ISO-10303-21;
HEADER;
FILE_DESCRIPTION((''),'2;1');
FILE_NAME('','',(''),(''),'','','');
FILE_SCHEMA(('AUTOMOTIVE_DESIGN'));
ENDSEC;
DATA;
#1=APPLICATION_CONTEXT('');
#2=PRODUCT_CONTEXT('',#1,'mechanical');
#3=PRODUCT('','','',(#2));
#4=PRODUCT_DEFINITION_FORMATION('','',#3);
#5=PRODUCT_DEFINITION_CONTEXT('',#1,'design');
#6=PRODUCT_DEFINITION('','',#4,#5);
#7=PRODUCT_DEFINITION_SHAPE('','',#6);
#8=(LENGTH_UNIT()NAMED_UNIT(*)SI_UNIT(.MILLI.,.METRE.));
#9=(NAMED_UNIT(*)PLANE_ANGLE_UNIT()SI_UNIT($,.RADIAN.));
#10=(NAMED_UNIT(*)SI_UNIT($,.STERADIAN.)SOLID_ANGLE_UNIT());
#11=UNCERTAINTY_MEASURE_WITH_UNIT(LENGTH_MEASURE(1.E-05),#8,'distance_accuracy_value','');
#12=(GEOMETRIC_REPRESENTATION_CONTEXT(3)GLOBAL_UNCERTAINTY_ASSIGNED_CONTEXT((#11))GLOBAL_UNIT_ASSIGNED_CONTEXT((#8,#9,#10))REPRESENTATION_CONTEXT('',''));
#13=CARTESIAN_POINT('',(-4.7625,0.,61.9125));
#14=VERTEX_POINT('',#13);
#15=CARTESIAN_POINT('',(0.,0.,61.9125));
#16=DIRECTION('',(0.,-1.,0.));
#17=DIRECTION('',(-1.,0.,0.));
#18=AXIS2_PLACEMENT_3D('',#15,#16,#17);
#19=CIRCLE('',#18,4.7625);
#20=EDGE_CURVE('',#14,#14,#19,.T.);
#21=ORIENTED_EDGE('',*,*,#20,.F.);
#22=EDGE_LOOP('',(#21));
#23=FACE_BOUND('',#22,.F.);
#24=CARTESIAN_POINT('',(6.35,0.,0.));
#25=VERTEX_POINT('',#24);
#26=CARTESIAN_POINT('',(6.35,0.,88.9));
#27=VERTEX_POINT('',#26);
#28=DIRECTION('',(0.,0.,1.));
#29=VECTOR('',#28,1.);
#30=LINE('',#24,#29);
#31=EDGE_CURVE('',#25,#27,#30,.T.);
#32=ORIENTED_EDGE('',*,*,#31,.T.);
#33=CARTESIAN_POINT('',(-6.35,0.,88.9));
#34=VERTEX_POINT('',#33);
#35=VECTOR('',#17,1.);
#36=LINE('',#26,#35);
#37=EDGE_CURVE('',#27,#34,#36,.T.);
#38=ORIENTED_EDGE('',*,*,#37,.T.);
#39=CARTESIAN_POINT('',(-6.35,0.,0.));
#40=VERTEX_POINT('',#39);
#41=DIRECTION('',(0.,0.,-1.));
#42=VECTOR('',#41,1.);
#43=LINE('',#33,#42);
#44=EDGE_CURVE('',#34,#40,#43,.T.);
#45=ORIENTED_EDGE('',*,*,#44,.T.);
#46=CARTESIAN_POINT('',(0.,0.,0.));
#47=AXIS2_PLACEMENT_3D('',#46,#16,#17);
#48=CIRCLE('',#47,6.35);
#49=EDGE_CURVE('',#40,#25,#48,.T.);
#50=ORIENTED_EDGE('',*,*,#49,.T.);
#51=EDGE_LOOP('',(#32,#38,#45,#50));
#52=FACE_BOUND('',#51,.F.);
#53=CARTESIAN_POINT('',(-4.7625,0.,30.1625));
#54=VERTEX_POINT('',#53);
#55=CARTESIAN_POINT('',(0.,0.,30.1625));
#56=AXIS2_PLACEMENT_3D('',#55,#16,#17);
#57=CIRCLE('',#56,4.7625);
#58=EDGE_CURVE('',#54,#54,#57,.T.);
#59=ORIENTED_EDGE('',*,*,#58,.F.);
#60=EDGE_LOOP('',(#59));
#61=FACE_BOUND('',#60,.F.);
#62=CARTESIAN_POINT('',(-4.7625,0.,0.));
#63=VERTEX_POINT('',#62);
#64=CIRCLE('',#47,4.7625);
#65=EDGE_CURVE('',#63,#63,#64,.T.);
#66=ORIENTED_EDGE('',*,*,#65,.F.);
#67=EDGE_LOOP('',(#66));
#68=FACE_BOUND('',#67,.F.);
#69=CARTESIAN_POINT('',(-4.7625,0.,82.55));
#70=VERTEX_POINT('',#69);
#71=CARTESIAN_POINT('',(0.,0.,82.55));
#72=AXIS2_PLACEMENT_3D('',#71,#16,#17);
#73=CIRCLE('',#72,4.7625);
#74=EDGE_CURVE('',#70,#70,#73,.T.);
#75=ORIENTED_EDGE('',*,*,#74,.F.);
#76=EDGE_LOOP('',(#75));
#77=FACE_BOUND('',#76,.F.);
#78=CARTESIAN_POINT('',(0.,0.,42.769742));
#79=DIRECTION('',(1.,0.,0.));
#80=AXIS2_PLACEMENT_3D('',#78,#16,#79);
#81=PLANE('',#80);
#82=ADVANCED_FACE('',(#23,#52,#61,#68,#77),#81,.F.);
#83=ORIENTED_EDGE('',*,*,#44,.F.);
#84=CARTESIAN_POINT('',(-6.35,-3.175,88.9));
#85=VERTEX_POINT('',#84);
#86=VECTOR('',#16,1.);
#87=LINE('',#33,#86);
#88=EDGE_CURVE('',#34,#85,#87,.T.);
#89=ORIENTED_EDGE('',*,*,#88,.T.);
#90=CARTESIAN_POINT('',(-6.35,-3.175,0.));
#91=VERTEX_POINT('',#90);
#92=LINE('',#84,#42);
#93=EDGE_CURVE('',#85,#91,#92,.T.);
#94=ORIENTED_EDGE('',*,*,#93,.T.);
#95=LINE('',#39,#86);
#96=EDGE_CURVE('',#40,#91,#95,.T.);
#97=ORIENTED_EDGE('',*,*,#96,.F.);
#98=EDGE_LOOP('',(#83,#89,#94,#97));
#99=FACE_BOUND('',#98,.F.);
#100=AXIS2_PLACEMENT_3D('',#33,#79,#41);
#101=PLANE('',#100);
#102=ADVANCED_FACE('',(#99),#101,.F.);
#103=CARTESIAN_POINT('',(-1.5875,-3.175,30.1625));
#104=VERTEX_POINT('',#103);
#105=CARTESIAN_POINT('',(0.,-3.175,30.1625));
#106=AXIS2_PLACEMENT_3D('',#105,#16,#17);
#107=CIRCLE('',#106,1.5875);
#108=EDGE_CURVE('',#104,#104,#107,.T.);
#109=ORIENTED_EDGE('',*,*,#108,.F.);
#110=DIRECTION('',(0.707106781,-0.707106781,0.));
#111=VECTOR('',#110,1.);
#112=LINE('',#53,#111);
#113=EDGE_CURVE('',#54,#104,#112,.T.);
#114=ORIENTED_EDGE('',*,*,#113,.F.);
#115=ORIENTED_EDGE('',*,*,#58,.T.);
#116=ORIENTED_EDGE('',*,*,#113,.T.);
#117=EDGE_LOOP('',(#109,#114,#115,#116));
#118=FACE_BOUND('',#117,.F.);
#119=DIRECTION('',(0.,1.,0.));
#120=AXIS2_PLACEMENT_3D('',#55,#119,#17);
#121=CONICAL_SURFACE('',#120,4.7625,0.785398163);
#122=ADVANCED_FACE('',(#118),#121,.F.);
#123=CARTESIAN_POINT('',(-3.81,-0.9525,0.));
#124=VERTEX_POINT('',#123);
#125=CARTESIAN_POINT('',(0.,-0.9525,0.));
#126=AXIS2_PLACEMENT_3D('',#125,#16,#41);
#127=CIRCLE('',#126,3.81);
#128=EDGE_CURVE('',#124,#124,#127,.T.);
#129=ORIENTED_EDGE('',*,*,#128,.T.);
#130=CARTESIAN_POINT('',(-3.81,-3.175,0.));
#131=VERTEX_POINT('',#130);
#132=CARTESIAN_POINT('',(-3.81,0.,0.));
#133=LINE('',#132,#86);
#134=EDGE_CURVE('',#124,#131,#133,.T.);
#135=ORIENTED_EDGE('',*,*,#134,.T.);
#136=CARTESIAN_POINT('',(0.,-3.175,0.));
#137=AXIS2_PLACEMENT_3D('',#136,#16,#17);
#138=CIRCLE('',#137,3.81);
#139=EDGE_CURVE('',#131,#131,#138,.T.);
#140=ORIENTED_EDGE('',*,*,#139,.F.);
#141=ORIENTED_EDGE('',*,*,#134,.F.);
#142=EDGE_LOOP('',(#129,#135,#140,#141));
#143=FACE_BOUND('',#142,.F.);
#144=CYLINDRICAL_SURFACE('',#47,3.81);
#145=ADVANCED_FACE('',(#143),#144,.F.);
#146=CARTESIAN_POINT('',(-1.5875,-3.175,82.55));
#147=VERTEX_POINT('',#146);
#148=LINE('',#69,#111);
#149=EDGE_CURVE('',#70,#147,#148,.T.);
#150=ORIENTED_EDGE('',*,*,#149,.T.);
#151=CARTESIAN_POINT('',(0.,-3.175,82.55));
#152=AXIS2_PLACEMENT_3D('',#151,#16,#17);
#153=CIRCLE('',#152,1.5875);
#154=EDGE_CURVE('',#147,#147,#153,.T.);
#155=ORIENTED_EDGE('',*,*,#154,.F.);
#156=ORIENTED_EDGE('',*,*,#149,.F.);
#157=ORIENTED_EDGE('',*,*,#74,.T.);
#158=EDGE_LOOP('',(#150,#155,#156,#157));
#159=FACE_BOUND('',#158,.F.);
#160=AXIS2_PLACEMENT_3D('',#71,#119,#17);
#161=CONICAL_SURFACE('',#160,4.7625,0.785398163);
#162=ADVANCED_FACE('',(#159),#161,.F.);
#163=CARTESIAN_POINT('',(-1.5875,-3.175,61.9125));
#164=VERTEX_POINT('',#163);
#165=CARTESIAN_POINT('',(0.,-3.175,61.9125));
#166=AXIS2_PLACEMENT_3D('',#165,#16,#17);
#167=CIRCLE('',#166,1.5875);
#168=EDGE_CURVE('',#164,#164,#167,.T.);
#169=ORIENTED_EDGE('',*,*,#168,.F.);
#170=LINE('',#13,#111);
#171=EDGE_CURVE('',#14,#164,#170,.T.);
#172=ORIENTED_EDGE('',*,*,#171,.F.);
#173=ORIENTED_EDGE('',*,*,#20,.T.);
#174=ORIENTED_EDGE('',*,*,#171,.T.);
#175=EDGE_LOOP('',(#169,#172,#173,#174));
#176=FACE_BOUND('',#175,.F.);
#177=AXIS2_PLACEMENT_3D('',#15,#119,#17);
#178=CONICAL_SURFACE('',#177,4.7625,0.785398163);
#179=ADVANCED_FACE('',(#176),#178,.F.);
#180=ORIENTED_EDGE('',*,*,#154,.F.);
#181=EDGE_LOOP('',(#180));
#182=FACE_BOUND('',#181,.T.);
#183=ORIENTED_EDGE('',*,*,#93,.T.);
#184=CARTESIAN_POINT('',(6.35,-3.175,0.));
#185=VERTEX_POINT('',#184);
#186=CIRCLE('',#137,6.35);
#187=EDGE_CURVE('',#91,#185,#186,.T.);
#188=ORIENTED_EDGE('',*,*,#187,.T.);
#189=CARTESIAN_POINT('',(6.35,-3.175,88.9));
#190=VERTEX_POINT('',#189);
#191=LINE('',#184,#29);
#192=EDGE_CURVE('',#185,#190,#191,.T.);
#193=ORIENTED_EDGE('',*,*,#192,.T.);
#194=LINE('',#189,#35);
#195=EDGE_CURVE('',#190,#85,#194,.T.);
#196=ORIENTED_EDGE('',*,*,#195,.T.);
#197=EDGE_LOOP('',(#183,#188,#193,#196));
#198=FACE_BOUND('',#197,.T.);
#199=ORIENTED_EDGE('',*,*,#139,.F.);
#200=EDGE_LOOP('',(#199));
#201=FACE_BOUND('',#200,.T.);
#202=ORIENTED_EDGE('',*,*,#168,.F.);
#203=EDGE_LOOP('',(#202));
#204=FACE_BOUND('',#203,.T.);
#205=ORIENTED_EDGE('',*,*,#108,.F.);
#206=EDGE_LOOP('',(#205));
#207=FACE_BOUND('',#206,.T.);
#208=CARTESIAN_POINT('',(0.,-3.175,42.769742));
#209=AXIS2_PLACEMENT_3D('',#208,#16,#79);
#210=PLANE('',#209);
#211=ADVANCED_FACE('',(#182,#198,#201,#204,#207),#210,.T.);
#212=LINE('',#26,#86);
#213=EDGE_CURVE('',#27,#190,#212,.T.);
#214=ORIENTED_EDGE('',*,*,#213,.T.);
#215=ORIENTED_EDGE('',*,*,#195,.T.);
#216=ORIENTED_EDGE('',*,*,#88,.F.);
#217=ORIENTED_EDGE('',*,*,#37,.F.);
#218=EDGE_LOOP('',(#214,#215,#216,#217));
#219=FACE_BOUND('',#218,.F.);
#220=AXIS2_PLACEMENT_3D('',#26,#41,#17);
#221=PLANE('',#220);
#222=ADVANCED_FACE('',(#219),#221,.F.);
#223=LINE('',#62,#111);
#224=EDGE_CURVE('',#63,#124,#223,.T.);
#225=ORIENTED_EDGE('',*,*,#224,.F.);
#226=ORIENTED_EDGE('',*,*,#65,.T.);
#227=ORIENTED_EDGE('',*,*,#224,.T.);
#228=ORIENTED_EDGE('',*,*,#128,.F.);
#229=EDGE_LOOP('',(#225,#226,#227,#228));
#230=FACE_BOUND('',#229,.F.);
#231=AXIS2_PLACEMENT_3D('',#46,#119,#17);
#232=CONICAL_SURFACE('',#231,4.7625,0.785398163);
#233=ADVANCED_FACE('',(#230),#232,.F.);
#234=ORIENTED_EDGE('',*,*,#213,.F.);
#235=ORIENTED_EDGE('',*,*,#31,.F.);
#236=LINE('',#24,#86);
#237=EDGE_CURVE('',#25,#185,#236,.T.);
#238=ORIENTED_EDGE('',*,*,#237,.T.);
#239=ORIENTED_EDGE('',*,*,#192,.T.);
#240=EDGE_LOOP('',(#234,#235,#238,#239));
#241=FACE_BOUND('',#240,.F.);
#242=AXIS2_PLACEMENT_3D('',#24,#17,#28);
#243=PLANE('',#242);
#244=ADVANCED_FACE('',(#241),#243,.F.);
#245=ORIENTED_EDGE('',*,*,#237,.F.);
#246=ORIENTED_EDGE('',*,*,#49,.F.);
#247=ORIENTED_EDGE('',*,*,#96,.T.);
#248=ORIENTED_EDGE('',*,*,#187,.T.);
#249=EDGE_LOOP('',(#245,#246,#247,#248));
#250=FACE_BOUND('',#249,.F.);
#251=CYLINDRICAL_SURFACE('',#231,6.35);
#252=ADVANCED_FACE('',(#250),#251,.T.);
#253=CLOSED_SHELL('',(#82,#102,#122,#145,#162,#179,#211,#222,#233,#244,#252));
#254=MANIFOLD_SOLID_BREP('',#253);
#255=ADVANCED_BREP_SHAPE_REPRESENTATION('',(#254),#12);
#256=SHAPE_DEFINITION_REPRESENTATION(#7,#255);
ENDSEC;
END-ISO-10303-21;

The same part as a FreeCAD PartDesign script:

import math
import FreeCAD as App
import Part
import Sketcher
Q = App.Units.Quantity

doc = App.newDocument("Part")
body = doc.addObject("PartDesign::Body", "Body")

# Sketch on XZ plane
sketch1 = doc.addObject("Sketcher::SketchObject", "Sketch")
body.addObject(sketch1)
sketch1.AttachmentSupport = (doc.XZ_Plane, [""])
sketch1.MapMode = "FlatFace"
sketch1.addGeometry(Part.LineSegment(App.Vector(6, 0, 0), App.Vector(6, 89, 0)), False)
sketch1.addGeometry(Part.LineSegment(App.Vector(6, 89, 0), App.Vector(-6, 89, 0)), False)
sketch1.addGeometry(Part.LineSegment(App.Vector(-6, 89, 0), App.Vector(-6, 0, 0)), False)
sketch1.addGeometry(Part.ArcOfCircle(Part.Circle(App.Vector(0, 0, 0), App.Vector(0, 0, 1), 6), math.radians(180), math.radians(360)), False)
sketch1.addConstraint(Sketcher.Constraint("Coincident", 0, 2, 1, 1))
sketch1.addConstraint(Sketcher.Constraint("Coincident", 1, 2, 2, 1))
sketch1.addConstraint(Sketcher.Constraint("Tangent", 2, 2, 3, 1))
sketch1.addConstraint(Sketcher.Constraint("Tangent", 3, 2, 0, 1))
sketch1.addConstraint(Sketcher.Constraint("Vertical", 0))
sketch1.addConstraint(Sketcher.Constraint("Horizontal", 1))
sketch1.addConstraint(Sketcher.Constraint("Vertical", 2))
sketch1.addConstraint(Sketcher.Constraint("Coincident", 3, 3, -1, 1))
sketch1.addConstraint(Sketcher.Constraint("Radius", 3, Q("0.25 in")))
sketch1.addConstraint(Sketcher.Constraint("DistanceY", 0, 1, 0, 2, Q("3.5 in")))
pad1 = doc.addObject("PartDesign::Pad", "Pad")
body.addObject(pad1)
pad1.Profile = sketch1
pad1.Length = Q("0.125 in")

# Sketch on XZ plane
sketch2 = doc.addObject("Sketcher::SketchObject", "Sketch001")
body.addObject(sketch2)
sketch2.AttachmentSupport = (doc.XZ_Plane, [""])
sketch2.MapMode = "FlatFace"
sketch2.addGeometry(Part.Circle(App.Vector(0, 82.5, 0), App.Vector(0, 0, 1), 1.3), False)
sketch2.addGeometry(Part.Circle(App.Vector(0, 61.9, 0), App.Vector(0, 0, 1), 1.3), False)
sketch2.addGeometry(Part.Circle(App.Vector(0, 30.2, 0), App.Vector(0, 0, 1), 1.3), False)
sketch2.addConstraint(Sketcher.Constraint("Equal", 0, 1))
sketch2.addConstraint(Sketcher.Constraint("Equal", 1, 2))
sketch2.addConstraint(Sketcher.Constraint("PointOnObject", 0, 3, -2))
sketch2.addConstraint(Sketcher.Constraint("PointOnObject", 1, 3, -2))
sketch2.addConstraint(Sketcher.Constraint("PointOnObject", 2, 3, -2))
sketch2.addConstraint(Sketcher.Constraint("Diameter", 0, Q("0.1 in")))
sketch2.addConstraint(Sketcher.Constraint("DistanceY", -1, 1, 0, 3, Q("3.25 in")))
sketch2.addConstraint(Sketcher.Constraint("DistanceY", 2, 3, 1, 3, Q("1.25 in")))
sketch2.addConstraint(Sketcher.Constraint("DistanceY", -1, 1, 1, 3, Q("2.4375 in")))
doc.recompute()
hole = doc.addObject("PartDesign::Hole", "Hole")
body.addObject(hole)
hole.Profile = sketch2
hole.ThreadType = "None"
hole.Diameter = Q("0.1 in")
hole.DepthType = "ThroughAll"
hole.HoleCutType = "Countersink"
hole.HoleCutDiameter = Q("0.375 in")
hole.HoleCutCountersinkAngle = 90
hole.Reversed = True

# Sketch on XZ plane
sketch3 = doc.addObject("Sketcher::SketchObject", "Sketch002")
body.addObject(sketch3)
sketch3.AttachmentSupport = (doc.XZ_Plane, [""])
sketch3.MapMode = "FlatFace"
sketch3.addGeometry(Part.Circle(App.Vector(0, 0, 0), App.Vector(0, 0, 1), 3.8), False)
sketch3.addConstraint(Sketcher.Constraint("Coincident", 0, 3, -1, 1))
sketch3.addConstraint(Sketcher.Constraint("Diameter", 0, Q("0.3 in")))
doc.recompute()
hole2 = doc.addObject("PartDesign::Hole", "Hole001")
body.addObject(hole2)
hole2.Profile = sketch3
hole2.ThreadType = "None"
hole2.Diameter = Q("0.3 in")
hole2.DepthType = "ThroughAll"
hole2.HoleCutType = "Countersink"
hole2.HoleCutDiameter = Q("0.375 in")
hole2.HoleCutCountersinkAngle = 90
hole2.Reversed = True

doc.recompute()
